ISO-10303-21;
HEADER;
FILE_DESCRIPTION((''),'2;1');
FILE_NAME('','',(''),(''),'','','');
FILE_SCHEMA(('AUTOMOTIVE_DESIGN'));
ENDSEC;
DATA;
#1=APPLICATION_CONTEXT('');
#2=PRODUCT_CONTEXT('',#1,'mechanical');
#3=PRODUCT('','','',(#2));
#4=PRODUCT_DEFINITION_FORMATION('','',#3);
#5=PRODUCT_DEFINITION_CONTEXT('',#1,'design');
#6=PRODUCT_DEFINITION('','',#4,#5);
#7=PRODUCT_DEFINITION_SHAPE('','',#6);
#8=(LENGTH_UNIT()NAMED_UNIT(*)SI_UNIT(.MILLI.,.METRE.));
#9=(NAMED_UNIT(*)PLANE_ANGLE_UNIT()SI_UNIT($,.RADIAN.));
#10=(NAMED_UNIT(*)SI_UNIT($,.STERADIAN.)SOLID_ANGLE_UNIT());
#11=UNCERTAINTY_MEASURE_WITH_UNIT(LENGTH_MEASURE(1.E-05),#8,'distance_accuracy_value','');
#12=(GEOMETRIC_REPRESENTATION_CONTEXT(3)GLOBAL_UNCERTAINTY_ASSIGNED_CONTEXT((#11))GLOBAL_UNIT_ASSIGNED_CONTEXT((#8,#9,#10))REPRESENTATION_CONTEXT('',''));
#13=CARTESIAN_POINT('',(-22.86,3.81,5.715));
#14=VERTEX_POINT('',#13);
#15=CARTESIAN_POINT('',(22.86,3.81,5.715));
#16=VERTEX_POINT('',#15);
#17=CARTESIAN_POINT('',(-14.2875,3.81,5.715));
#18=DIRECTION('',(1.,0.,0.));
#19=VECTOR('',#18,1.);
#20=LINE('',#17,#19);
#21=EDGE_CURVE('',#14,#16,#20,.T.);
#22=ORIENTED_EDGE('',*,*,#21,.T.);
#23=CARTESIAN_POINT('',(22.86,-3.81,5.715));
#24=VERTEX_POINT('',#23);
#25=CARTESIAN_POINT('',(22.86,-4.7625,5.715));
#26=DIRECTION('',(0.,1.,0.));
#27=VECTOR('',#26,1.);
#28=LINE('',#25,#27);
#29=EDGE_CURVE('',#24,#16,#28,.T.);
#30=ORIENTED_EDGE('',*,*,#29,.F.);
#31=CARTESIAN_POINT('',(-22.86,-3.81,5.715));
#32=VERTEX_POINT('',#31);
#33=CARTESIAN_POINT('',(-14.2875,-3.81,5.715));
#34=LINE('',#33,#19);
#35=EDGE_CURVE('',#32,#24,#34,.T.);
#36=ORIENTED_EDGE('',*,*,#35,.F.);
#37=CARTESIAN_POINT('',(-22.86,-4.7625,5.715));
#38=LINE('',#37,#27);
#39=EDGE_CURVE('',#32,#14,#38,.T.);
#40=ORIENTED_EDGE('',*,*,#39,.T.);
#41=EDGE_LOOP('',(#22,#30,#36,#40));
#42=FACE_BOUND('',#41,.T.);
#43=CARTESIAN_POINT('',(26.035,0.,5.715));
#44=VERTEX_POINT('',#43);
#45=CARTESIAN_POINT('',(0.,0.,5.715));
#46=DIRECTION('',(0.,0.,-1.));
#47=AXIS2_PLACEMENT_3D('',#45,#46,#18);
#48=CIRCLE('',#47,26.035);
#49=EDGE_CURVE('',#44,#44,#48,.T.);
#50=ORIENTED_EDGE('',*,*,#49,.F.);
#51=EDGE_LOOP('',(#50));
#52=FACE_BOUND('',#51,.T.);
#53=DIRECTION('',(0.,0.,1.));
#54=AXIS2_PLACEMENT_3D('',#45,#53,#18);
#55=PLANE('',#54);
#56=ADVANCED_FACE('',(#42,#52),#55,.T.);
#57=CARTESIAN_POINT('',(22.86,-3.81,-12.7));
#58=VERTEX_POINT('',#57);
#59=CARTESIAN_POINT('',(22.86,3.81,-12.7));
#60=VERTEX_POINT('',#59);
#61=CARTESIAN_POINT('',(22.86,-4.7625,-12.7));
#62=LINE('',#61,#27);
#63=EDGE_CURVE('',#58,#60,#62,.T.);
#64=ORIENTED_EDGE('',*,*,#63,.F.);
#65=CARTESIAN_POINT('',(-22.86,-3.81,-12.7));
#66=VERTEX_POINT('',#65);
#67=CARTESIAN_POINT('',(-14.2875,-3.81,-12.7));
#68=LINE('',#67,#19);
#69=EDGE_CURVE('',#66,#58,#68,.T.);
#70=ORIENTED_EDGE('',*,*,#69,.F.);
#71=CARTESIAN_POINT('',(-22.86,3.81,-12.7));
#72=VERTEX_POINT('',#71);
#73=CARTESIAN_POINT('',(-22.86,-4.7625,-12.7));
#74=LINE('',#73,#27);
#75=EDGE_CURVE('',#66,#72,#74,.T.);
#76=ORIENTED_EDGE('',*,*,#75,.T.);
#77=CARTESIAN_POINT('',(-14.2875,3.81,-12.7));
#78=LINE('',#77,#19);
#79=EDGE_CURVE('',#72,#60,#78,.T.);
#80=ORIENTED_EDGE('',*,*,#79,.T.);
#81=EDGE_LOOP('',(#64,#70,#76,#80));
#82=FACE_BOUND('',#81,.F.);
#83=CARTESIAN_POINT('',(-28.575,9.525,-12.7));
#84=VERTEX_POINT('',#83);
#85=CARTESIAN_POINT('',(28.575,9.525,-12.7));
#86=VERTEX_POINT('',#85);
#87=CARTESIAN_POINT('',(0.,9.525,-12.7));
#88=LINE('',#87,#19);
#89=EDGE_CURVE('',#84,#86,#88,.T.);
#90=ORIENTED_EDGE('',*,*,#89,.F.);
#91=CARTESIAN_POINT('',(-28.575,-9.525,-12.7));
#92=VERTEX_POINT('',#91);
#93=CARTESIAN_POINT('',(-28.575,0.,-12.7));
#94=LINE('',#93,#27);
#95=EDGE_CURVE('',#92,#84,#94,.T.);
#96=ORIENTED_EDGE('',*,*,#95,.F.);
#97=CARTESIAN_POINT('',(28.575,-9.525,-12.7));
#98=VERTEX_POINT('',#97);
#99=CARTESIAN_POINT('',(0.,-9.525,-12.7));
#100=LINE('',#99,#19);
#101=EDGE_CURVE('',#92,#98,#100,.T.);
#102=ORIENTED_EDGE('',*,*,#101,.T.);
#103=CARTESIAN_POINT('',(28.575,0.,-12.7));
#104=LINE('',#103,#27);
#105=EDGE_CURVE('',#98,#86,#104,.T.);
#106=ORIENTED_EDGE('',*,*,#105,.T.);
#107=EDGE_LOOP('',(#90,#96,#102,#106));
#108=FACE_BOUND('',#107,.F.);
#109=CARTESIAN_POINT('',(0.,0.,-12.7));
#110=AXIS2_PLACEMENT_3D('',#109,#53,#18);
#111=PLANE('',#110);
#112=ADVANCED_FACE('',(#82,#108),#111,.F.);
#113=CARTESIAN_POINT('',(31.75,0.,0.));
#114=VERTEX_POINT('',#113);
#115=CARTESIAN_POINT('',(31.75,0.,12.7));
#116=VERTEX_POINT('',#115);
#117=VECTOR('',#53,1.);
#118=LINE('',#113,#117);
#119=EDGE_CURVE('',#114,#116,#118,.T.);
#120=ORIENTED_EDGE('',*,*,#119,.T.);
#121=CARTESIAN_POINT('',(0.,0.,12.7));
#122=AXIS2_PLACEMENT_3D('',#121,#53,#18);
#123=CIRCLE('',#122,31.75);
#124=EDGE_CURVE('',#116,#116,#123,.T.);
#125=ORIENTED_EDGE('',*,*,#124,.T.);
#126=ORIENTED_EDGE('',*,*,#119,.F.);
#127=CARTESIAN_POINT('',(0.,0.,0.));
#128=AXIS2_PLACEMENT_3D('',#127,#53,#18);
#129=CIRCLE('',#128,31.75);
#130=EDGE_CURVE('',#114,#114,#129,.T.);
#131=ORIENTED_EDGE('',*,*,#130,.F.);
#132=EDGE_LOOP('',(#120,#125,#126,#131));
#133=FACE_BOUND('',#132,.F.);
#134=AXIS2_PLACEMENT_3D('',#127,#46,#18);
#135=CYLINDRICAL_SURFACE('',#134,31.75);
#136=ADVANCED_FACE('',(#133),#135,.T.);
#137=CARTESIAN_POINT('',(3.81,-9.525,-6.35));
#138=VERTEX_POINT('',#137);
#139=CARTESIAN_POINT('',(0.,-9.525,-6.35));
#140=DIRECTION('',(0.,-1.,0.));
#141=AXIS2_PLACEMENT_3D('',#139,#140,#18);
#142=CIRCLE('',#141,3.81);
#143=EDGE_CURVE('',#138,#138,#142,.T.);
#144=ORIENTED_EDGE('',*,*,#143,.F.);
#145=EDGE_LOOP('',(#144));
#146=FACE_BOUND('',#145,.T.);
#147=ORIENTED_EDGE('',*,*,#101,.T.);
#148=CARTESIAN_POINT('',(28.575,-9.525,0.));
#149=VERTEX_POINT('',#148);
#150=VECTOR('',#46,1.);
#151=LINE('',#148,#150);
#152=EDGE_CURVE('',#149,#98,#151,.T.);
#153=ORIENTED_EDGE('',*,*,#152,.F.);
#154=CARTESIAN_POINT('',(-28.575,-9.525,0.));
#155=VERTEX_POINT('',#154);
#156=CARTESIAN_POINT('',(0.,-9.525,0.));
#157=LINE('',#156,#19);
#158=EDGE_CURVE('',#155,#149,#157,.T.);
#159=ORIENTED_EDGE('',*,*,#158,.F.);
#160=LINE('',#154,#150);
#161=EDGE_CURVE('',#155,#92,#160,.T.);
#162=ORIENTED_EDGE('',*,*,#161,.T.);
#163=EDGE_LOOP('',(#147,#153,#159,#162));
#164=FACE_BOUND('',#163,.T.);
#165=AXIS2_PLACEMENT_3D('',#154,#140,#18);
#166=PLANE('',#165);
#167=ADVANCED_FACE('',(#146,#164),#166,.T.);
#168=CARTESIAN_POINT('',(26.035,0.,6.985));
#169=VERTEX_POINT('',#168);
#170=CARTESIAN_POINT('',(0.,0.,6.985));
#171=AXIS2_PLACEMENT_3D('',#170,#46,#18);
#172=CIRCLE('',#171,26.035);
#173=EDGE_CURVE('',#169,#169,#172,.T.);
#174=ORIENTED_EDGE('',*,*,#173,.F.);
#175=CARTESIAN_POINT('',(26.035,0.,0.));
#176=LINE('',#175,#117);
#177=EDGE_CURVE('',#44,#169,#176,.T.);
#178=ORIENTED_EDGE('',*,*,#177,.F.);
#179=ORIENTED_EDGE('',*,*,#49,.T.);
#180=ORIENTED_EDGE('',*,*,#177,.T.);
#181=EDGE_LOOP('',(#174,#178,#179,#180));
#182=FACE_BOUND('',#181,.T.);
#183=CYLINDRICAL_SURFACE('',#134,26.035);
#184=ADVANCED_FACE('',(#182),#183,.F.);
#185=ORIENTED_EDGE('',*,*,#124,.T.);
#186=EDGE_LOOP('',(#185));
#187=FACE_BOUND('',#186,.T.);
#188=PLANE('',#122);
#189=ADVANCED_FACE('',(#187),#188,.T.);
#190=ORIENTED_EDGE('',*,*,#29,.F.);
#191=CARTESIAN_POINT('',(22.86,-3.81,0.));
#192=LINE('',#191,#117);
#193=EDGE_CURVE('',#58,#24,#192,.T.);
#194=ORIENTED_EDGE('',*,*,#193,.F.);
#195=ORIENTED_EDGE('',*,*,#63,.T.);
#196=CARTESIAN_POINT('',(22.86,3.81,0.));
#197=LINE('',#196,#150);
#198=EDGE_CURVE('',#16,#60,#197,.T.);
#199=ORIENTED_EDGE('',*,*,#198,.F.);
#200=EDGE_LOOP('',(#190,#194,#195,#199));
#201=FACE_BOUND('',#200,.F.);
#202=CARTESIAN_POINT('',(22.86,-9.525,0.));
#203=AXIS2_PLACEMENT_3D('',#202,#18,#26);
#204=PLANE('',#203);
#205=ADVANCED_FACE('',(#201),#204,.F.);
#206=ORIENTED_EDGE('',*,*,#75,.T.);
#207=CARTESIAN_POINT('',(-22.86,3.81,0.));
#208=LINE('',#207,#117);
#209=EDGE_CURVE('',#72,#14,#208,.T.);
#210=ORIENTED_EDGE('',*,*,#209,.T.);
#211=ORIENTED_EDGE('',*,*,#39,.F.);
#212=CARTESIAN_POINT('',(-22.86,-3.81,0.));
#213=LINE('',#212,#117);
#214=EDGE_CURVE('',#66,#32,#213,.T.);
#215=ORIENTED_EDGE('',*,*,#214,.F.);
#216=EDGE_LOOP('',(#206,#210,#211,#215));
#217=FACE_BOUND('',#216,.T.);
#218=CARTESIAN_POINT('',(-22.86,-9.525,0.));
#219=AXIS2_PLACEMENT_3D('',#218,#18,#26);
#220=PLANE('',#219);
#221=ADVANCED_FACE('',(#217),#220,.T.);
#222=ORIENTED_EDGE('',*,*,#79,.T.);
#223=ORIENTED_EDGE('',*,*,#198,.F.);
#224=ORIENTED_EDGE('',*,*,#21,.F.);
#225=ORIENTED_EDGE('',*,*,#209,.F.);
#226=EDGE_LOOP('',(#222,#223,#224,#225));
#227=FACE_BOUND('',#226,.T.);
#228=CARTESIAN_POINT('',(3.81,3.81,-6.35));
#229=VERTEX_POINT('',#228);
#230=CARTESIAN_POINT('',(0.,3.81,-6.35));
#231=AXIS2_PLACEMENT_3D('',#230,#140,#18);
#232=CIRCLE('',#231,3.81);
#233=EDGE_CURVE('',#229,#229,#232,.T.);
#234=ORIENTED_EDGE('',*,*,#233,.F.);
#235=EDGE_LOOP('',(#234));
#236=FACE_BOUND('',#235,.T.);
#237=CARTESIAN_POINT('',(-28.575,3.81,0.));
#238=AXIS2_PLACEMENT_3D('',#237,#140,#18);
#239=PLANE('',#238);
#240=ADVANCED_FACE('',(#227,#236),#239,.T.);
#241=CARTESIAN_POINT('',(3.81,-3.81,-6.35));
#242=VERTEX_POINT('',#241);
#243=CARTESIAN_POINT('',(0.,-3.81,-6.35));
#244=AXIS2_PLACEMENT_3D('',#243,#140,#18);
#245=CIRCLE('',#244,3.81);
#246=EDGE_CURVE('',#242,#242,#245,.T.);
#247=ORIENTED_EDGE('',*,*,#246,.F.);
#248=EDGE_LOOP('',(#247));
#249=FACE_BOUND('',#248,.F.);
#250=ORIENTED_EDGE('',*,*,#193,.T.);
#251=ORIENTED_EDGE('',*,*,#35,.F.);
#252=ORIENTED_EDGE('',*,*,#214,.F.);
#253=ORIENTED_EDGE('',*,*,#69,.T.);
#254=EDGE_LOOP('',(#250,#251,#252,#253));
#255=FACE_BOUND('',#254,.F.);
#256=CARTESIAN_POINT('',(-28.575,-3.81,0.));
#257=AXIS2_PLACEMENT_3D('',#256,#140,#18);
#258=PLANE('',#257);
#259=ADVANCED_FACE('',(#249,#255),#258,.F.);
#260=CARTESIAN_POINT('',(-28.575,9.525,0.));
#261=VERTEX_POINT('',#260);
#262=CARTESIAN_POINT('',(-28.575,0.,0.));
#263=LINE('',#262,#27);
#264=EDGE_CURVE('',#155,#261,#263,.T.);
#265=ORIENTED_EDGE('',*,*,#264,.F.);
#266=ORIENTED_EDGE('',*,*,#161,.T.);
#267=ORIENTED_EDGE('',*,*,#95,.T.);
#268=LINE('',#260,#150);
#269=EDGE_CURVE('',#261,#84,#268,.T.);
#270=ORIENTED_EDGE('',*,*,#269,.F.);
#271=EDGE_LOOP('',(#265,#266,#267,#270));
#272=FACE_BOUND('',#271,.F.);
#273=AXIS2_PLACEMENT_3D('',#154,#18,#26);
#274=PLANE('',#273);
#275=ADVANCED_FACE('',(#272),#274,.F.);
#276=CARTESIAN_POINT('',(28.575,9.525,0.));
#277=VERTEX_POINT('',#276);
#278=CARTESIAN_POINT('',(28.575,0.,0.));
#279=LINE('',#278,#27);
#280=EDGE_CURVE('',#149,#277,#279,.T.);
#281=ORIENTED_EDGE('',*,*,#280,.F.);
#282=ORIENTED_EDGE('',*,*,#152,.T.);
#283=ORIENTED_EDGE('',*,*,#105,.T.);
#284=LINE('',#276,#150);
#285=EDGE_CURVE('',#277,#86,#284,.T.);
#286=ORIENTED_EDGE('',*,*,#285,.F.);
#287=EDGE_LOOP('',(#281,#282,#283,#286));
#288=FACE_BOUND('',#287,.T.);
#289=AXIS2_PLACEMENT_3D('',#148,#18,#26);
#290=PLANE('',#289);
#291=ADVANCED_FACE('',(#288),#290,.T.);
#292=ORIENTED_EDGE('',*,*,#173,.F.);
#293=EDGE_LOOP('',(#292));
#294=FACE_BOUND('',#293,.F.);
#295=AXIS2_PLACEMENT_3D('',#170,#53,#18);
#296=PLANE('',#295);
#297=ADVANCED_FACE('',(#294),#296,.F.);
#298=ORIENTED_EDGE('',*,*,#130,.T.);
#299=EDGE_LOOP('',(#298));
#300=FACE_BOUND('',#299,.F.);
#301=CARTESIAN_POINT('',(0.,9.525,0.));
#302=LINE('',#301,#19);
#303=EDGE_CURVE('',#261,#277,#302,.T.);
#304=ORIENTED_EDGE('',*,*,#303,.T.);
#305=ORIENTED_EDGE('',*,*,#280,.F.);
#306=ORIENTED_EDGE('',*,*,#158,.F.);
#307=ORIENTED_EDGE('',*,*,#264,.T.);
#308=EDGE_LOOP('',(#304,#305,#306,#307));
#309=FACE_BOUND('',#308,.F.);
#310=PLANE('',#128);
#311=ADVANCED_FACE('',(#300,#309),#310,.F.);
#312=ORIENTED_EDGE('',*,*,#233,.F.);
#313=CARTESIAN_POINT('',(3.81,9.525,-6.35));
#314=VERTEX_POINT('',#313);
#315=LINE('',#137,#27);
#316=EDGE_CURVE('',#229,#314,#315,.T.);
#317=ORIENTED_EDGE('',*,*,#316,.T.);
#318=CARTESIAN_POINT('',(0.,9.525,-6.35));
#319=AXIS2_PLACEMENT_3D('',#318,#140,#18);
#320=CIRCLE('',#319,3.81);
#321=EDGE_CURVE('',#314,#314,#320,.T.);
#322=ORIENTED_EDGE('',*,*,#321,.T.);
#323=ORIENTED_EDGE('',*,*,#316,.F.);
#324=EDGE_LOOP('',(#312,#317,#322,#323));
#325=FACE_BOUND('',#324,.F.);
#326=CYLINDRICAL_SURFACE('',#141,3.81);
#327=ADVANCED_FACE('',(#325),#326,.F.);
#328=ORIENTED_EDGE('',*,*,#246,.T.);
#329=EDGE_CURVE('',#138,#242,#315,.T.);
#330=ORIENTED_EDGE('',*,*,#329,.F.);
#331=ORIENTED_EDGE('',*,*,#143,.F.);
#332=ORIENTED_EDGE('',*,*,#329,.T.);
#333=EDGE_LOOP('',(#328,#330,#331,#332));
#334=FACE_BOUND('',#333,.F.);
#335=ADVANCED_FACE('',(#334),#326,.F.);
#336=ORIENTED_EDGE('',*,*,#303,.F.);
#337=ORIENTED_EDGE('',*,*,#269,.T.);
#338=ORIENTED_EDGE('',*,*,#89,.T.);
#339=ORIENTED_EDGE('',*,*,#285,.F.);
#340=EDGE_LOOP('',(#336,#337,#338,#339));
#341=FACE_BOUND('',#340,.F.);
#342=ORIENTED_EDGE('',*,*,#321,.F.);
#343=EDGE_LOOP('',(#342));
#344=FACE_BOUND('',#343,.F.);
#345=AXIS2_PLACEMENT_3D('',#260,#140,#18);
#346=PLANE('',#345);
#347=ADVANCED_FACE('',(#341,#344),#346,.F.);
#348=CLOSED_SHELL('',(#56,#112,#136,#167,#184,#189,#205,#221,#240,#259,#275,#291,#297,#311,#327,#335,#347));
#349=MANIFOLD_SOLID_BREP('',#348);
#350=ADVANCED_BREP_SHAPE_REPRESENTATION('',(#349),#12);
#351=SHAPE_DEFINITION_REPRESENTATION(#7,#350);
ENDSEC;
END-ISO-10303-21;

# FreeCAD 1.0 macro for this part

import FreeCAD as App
import Part
import Sketcher
from FreeCAD import Vector
Q = App.Units.Quantity


def faces_at(feature, points):
    """Names of the faces that lie closest to the given points."""
    faces = feature.Shape.Faces
    near = lambda p: min(range(len(faces)), key=lambda i: faces[i].distToShape(Part.Vertex(*p))[0])
    return sorted({f"Face{near(p) + 1}" for p in points})

doc = App.newDocument("Part")
params = doc.addObject("Spreadsheet::Sheet", "Params")
for row, (alias, value) in enumerate([
    ("sketch1_diameter", "2.5 in"),
    ("pad1_length", "0.5 in"),
    ("sketch2_width", "2.25 in"),
    ("sketch2_height", "0.75 in"),
    ("pad2_length", "0.5 in"),
    ("thickness_wall", "0.225 in"),
    ("sketch3_diameter", "0.3 in"),
], start=1):
    params.set(f"A{row}", alias)
    params.set(f"B{row}", "=" + value)
    params.setAlias(f"B{row}", alias)

body = doc.addObject("PartDesign::Body", "Body")

sketch1 = body.newObject("Sketcher::SketchObject", "Sketch")
sketch1.AttachmentSupport = (doc.getObject("XY_Plane"), [""])
sketch1.MapMode = "FlatFace"
sketch1.addGeometry(Part.Circle(Vector(0, 0, 0), Vector(0, 0, 1), 31.75), False)
sketch1.addConstraint([
    Sketcher.Constraint("Coincident", 0, 3, -1, 1),
    Sketcher.Constraint("Diameter", 0, Q("2.5 in")),
])
sketch1.setExpression("Constraints[1]", "Params.sketch1_diameter")
pad1 = body.newObject("PartDesign::Pad", "Pad")
pad1.Profile = sketch1
pad1.setExpression("Length", "Params.pad1_length")

sketch2 = body.newObject("Sketcher::SketchObject", "Sketch001")
sketch2.AttachmentSupport = (doc.getObject("XY_Plane"), [""])
sketch2.MapMode = "FlatFace"
sketch2.addGeometry([
    Part.LineSegment(Vector(-28.575, 9.525, 0), Vector(-28.575, -9.525, 0)),
    Part.LineSegment(Vector(-28.575, -9.525, 0), Vector(28.575, -9.525, 0)),
    Part.LineSegment(Vector(28.575, -9.525, 0), Vector(28.575, 9.525, 0)),
    Part.LineSegment(Vector(28.575, 9.525, 0), Vector(-28.575, 9.525, 0)),
], False)
sketch2.addConstraint([
    Sketcher.Constraint("Coincident", 0, 2, 1, 1),
    Sketcher.Constraint("Coincident", 1, 2, 2, 1),
    Sketcher.Constraint("Coincident", 2, 2, 3, 1),
    Sketcher.Constraint("Coincident", 3, 2, 0, 1),
    Sketcher.Constraint("Vertical", 0),
    Sketcher.Constraint("Horizontal", 1),
    Sketcher.Constraint("Vertical", 2),
    Sketcher.Constraint("Horizontal", 3),
    Sketcher.Constraint("Symmetric", 0, 2, 2, 2, -1, 1),
    Sketcher.Constraint("DistanceX", 1, 1, 1, 2, Q("2.25 in")),
    Sketcher.Constraint("DistanceY", 0, 2, 0, 1, Q("0.75 in")),
])
sketch2.setExpression("Constraints[9]", "Params.sketch2_width")
sketch2.setExpression("Constraints[10]", "Params.sketch2_height")
pad2 = body.newObject("PartDesign::Pad", "Pad001")
pad2.Profile = sketch2
pad2.setExpression("Length", "Params.pad2_length")
pad2.Reversed = True
doc.recompute()

thickness = body.newObject("PartDesign::Thickness", "Thickness")
thickness.Base = (pad2, faces_at(pad2, [(0, 0, -12.7)]))
thickness.setExpression("Value", "Params.thickness_wall")
thickness.Reversed = True
thickness.Join = "Intersection"

sketch3 = body.newObject("Sketcher::SketchObject", "Sketch002")
sketch3.AttachmentSupport = (doc.getObject("XZ_Plane"), [""])
sketch3.MapMode = "FlatFace"
sketch3.AttachmentOffset = App.Placement(Vector(0, 0, 0.375 * 25.4), App.Rotation())
sketch3.addGeometry(Part.Circle(Vector(0, -6.35, 0), Vector(0, 0, 1), 3.81), False)
sketch3.addConstraint([
    Sketcher.Constraint("PointOnObject", 0, 3, -2),
    Sketcher.Constraint("Diameter", 0, Q("0.3 in")),
    Sketcher.Constraint("DistanceY", 0, 3, -1, 1, Q("0.25 in")),
])
sketch3.setExpression("Constraints[1]", "Params.sketch3_diameter")
pocket1 = body.newObject("PartDesign::Pocket", "Pocket")
pocket1.Profile = sketch3
pocket1.Type = "ThroughAll"

doc.recompute()
